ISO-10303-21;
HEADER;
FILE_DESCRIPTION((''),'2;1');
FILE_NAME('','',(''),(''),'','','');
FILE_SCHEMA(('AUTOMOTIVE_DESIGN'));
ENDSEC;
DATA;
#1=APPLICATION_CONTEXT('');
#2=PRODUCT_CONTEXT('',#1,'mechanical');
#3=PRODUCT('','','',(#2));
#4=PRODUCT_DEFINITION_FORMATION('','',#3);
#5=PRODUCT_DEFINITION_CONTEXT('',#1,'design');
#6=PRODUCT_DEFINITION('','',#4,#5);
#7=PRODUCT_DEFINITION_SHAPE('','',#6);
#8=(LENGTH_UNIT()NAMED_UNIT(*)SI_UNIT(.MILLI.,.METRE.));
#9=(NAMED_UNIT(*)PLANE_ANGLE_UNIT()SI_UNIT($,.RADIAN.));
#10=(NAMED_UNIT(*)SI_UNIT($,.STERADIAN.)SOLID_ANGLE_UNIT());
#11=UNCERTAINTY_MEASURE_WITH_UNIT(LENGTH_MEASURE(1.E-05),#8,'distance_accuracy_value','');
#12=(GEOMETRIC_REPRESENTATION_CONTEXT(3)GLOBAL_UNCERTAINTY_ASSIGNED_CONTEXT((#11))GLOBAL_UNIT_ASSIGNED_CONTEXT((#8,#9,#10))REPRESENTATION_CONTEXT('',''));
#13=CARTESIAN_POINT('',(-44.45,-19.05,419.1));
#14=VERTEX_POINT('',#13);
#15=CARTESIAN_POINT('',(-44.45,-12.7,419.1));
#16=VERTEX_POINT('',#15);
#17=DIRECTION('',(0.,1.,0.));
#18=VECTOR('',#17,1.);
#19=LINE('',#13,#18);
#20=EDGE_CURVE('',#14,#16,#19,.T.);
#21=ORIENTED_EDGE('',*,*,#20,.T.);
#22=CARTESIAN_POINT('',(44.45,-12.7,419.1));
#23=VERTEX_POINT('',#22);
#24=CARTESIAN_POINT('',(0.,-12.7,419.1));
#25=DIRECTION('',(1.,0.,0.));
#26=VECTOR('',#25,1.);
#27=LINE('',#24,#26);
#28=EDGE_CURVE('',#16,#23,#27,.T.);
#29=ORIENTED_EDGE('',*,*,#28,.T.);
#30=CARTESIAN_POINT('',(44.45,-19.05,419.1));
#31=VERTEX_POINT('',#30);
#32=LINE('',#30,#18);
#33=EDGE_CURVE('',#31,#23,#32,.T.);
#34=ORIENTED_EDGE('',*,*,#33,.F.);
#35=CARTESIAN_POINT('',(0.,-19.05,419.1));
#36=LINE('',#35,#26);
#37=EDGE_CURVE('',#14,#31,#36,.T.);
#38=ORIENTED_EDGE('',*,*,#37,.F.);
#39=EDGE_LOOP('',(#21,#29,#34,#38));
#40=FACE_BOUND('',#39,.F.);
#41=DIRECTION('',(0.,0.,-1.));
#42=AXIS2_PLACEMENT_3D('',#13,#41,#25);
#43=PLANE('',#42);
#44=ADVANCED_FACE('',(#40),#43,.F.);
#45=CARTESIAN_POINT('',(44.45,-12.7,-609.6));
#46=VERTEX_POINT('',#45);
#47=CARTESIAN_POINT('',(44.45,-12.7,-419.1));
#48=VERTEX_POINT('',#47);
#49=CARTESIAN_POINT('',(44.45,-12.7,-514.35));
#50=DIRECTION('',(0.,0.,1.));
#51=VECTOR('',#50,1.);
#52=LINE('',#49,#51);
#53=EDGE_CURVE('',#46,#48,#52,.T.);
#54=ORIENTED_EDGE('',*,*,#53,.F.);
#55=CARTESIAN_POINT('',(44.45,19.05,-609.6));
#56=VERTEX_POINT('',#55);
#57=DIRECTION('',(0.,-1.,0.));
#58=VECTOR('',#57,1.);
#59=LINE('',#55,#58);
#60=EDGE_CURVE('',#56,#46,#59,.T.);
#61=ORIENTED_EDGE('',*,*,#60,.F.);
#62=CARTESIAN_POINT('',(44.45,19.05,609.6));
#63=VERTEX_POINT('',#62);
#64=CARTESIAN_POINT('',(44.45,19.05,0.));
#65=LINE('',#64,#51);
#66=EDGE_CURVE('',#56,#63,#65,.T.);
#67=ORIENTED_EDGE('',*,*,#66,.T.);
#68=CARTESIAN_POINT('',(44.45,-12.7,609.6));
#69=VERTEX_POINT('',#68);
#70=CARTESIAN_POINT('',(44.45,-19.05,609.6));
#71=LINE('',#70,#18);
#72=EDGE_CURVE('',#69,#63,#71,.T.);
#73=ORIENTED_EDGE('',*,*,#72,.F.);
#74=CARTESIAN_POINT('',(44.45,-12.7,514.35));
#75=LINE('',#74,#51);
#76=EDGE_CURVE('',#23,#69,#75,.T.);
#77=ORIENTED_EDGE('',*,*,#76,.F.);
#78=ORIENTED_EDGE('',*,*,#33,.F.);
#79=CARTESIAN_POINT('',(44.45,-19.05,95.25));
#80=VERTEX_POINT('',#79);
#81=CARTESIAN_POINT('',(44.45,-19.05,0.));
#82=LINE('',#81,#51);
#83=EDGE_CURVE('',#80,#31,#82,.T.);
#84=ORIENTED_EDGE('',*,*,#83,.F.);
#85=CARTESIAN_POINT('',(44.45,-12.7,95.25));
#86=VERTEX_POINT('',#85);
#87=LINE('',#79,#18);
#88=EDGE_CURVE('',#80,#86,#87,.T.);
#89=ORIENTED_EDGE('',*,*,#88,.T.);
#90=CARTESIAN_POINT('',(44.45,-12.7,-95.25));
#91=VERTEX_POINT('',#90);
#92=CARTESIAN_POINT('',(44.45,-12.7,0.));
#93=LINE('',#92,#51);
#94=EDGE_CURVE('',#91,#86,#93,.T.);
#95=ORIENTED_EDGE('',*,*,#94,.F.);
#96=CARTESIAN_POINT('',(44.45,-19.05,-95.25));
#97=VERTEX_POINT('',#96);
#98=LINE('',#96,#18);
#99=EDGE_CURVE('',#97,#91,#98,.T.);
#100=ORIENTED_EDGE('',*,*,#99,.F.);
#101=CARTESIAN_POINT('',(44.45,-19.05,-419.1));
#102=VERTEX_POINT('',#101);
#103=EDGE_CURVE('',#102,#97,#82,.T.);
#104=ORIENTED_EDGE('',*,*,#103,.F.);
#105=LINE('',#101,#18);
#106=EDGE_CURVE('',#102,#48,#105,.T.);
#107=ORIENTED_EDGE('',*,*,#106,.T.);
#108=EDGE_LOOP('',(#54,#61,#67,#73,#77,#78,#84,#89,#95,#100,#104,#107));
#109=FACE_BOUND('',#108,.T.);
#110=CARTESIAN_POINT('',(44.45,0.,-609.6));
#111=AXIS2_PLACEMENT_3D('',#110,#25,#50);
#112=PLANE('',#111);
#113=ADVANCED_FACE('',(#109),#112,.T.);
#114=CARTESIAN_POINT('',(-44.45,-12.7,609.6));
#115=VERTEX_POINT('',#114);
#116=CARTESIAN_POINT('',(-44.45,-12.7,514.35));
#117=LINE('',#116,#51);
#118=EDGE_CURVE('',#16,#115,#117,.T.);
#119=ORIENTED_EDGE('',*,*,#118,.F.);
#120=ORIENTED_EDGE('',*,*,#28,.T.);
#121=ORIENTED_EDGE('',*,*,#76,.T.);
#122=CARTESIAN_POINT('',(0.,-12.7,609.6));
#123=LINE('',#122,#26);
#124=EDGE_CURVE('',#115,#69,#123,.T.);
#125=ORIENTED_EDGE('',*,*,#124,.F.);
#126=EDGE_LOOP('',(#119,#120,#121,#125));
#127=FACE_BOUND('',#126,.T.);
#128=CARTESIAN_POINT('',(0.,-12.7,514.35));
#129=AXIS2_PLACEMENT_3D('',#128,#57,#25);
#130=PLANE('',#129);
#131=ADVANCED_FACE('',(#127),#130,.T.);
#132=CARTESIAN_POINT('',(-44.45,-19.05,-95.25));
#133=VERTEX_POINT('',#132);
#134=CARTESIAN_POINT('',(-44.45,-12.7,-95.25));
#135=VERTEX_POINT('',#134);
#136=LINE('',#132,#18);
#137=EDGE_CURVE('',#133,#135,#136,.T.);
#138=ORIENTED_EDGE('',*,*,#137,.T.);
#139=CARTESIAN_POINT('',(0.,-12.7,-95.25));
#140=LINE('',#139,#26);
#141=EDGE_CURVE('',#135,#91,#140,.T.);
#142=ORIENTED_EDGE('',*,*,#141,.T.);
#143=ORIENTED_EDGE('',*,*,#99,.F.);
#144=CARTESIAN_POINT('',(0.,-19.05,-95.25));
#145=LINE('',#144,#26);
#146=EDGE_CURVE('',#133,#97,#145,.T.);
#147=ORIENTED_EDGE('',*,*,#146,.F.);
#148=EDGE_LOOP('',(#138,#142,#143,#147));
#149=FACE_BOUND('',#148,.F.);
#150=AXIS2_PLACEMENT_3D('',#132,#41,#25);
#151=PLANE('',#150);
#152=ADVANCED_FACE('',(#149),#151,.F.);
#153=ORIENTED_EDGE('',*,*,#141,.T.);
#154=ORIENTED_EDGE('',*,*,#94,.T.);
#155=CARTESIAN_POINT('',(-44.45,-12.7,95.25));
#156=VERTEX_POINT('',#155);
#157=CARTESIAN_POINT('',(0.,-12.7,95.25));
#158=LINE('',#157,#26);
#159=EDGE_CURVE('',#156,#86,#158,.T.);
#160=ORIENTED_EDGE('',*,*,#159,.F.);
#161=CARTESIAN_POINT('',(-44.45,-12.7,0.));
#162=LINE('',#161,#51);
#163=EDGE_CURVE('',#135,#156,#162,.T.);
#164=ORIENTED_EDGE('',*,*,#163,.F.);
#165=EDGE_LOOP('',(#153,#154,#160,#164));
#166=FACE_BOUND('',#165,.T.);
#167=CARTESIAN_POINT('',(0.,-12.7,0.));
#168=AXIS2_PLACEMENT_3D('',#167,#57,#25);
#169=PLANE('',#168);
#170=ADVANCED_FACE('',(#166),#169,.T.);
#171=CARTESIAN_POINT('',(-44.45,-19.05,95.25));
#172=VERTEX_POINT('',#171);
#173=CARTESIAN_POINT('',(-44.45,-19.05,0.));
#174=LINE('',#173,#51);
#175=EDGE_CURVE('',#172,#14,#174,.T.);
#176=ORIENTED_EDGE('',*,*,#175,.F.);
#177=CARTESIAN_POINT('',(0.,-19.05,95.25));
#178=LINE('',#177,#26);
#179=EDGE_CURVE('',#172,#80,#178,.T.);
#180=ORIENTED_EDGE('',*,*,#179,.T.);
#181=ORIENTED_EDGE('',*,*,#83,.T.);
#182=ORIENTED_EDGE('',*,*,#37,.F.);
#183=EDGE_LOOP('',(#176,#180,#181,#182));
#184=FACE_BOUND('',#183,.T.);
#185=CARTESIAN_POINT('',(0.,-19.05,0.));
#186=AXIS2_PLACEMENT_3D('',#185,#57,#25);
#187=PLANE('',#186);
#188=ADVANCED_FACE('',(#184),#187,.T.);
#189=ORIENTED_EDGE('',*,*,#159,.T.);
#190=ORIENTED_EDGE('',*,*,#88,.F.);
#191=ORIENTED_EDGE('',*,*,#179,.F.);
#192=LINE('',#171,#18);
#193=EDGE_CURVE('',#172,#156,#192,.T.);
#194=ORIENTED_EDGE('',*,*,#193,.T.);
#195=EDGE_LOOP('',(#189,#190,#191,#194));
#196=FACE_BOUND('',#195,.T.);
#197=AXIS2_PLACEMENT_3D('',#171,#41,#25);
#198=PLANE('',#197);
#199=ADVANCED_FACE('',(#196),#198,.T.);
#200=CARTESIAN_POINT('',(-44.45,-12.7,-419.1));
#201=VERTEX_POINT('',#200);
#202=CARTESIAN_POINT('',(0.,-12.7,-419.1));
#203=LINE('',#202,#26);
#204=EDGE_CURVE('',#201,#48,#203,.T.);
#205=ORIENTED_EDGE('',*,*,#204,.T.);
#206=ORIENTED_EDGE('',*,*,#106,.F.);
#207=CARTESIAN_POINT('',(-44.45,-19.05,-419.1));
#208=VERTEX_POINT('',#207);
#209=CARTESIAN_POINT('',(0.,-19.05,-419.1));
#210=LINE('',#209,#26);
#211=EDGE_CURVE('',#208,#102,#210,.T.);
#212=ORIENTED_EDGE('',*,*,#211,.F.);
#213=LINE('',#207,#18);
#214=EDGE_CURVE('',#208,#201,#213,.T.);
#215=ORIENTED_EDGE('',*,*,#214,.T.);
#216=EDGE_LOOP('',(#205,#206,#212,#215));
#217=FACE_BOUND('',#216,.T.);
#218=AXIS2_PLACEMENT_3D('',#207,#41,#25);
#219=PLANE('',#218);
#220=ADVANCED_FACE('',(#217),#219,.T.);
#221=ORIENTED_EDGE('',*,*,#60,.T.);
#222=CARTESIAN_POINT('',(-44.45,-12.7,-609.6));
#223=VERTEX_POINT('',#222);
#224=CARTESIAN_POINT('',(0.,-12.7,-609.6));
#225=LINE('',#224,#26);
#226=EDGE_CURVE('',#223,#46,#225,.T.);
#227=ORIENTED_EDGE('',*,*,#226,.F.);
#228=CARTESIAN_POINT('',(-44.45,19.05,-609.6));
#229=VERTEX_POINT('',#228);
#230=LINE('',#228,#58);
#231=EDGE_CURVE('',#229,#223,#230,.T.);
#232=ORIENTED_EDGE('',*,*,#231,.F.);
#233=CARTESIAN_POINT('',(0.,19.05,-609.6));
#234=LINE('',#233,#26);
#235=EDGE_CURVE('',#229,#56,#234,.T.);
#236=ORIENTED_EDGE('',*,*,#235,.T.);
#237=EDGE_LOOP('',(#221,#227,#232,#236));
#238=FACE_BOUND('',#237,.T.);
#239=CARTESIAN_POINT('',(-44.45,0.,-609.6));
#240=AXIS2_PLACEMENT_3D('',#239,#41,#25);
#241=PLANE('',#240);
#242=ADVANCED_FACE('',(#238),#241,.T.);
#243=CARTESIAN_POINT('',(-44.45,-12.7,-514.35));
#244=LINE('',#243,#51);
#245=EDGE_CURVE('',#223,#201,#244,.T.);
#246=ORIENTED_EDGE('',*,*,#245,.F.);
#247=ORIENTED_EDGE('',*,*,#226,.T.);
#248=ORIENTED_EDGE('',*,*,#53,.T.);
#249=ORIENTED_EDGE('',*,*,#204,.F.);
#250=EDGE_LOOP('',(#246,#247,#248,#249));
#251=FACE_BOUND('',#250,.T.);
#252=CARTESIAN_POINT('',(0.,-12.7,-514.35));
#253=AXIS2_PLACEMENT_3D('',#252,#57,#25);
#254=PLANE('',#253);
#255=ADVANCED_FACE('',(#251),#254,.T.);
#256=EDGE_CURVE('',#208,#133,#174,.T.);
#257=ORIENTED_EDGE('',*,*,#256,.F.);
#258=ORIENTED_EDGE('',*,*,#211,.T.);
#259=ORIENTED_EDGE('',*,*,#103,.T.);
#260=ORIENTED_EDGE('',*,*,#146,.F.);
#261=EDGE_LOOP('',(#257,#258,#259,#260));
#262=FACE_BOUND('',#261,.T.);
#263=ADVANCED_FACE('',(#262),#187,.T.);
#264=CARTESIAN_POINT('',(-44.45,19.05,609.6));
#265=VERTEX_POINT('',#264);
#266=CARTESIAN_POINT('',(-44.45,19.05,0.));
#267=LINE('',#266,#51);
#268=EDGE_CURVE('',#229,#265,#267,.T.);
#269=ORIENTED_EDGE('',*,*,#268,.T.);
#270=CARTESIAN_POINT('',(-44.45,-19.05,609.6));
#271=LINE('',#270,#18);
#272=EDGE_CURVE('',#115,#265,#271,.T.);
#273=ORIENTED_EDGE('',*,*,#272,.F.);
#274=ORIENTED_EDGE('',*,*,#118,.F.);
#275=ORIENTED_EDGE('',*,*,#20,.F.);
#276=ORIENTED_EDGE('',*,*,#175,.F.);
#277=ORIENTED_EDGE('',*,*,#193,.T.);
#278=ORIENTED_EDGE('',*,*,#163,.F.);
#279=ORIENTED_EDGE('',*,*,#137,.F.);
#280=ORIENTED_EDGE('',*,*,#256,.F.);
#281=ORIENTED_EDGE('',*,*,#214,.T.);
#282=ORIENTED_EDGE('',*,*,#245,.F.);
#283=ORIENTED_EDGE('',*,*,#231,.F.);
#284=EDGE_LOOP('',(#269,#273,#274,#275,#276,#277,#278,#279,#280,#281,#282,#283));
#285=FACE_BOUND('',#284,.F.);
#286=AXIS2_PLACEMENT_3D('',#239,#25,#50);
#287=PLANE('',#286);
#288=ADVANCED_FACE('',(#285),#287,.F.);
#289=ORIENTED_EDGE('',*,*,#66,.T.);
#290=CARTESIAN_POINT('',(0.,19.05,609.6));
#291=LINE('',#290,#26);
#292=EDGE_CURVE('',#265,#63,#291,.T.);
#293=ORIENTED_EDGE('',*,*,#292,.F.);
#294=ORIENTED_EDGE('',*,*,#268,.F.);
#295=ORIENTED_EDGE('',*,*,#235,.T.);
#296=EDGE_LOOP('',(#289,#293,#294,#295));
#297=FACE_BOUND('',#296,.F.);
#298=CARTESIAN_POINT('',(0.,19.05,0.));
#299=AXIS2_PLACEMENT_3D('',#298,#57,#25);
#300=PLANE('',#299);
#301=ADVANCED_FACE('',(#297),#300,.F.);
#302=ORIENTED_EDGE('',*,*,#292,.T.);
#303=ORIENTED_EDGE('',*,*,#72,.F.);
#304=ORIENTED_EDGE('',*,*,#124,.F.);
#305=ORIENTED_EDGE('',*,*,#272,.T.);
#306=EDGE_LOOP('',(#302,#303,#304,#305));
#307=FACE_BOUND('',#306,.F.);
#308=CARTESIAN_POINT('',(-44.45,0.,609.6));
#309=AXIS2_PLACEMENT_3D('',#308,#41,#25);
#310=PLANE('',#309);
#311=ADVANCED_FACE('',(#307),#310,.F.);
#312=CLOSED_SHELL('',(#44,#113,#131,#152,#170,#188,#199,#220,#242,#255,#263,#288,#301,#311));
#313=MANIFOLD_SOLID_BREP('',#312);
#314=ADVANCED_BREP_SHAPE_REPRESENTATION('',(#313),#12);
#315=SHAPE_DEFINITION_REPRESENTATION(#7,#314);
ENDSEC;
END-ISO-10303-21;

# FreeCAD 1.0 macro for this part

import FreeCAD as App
import Part
import Sketcher

V = App.Vector
Q = App.Units.Quantity


def add_polygon(sketch, points):
    """Adds a closed chain of lines whose ends are joined by coincident constraints."""
    first, n = sketch.GeometryCount, len(points)
    for a, b in zip(points, points[1:] + points[:1]):
        sketch.addGeometry(Part.LineSegment(App.Vector(*a, 0), App.Vector(*b, 0)), False)
    for i in range(n):
        sketch.addConstraint(Sketcher.Constraint("Coincident", first + i, 2, first + (i + 1) % n, 1))

doc = App.newDocument("Part")
body = doc.addObject("PartDesign::Body", "Body")

# Sketch on XZ plane
sketch1 = body.newObject("Sketcher::SketchObject", "Sketch")
sketch1.AttachmentSupport = (doc.getObject("XZ_Plane"), [""])
sketch1.MapMode = "FlatFace"
add_polygon(sketch1, [(-44, 610), (-44, -610), (44, -610), (44, 610)])  # lines 0-3
sketch1.addConstraint([
    Sketcher.Constraint("Vertical", 0),
    Sketcher.Constraint("Horizontal", 1),
    Sketcher.Constraint("Vertical", 2),
    Sketcher.Constraint("Horizontal", 3),
    Sketcher.Constraint("Symmetric", 0, 2, 2, 2, -1, 1),
    Sketcher.Constraint("DistanceY", 0, 2, 0, 1, Q("48 in")),
    Sketcher.Constraint("DistanceX", 1, 1, 1, 2, Q("3.5 in")),
])
pad1 = body.newObject("PartDesign::Pad", "Pad")
pad1.Profile = sketch1
pad1.Length = Q("1.5 in")
pad1.Midplane = True

# Sketch on XZ plane
sketch2 = body.newObject("Sketcher::SketchObject", "Sketch001")
sketch2.AttachmentSupport = (doc.getObject("XZ_Plane"), [""])
sketch2.MapMode = "FlatFace"
sketch2.AttachmentOffset = App.Placement(V(0, 0, 0.75 * 25.4), App.Rotation())
add_polygon(sketch2, [(-44, -419), (-44, -610), (44, -610), (44, -419)])  # lines 0-3
add_polygon(sketch2, [(-44, 95), (-44, -95), (44, -95), (44, 95)])  # lines 4-7
add_polygon(sketch2, [(-44, 610), (-44, 419), (44, 419), (44, 610)])  # lines 8-11
sketch2.addConstraint([
    Sketcher.Constraint("Vertical", 0),
    Sketcher.Constraint("Horizontal", 1),
    Sketcher.Constraint("Vertical", 2),
    Sketcher.Constraint("Horizontal", 3),
    Sketcher.Constraint("Vertical", 4),
    Sketcher.Constraint("Horizontal", 5),
    Sketcher.Constraint("Vertical", 6),
    Sketcher.Constraint("Horizontal", 7),
    Sketcher.Constraint("Vertical", 8),
    Sketcher.Constraint("Horizontal", 9),
    Sketcher.Constraint("Vertical", 10),
    Sketcher.Constraint("Horizontal", 11),
    Sketcher.Constraint("Symmetric", 4, 2, 6, 2, -1, 1),
    Sketcher.Constraint("Symmetric", 2, 2, 8, 2, -1, 1),
    Sketcher.Constraint("Symmetric", 0, 2, 10, 2, -1, 1),
    Sketcher.Constraint("Vertical", 3, 2, 4, 2),
    Sketcher.Constraint("Vertical", 2, 2, 5, 2),
    Sketcher.Constraint("Equal", 2, 4),
    Sketcher.Constraint("DistanceX", 1, 1, 1, 2, Q("3.5 in")),
    Sketcher.Constraint("DistanceY", 0, 2, 0, 1, Q("7.5 in")),
    Sketcher.Constraint("DistanceY", 0, 2, -1, 1, Q("24 in")),
])
pocket1 = body.newObject("PartDesign::Pocket", "Pocket")
pocket1.Profile = sketch2
pocket1.Length = Q("0.25 in")

doc.recompute()
